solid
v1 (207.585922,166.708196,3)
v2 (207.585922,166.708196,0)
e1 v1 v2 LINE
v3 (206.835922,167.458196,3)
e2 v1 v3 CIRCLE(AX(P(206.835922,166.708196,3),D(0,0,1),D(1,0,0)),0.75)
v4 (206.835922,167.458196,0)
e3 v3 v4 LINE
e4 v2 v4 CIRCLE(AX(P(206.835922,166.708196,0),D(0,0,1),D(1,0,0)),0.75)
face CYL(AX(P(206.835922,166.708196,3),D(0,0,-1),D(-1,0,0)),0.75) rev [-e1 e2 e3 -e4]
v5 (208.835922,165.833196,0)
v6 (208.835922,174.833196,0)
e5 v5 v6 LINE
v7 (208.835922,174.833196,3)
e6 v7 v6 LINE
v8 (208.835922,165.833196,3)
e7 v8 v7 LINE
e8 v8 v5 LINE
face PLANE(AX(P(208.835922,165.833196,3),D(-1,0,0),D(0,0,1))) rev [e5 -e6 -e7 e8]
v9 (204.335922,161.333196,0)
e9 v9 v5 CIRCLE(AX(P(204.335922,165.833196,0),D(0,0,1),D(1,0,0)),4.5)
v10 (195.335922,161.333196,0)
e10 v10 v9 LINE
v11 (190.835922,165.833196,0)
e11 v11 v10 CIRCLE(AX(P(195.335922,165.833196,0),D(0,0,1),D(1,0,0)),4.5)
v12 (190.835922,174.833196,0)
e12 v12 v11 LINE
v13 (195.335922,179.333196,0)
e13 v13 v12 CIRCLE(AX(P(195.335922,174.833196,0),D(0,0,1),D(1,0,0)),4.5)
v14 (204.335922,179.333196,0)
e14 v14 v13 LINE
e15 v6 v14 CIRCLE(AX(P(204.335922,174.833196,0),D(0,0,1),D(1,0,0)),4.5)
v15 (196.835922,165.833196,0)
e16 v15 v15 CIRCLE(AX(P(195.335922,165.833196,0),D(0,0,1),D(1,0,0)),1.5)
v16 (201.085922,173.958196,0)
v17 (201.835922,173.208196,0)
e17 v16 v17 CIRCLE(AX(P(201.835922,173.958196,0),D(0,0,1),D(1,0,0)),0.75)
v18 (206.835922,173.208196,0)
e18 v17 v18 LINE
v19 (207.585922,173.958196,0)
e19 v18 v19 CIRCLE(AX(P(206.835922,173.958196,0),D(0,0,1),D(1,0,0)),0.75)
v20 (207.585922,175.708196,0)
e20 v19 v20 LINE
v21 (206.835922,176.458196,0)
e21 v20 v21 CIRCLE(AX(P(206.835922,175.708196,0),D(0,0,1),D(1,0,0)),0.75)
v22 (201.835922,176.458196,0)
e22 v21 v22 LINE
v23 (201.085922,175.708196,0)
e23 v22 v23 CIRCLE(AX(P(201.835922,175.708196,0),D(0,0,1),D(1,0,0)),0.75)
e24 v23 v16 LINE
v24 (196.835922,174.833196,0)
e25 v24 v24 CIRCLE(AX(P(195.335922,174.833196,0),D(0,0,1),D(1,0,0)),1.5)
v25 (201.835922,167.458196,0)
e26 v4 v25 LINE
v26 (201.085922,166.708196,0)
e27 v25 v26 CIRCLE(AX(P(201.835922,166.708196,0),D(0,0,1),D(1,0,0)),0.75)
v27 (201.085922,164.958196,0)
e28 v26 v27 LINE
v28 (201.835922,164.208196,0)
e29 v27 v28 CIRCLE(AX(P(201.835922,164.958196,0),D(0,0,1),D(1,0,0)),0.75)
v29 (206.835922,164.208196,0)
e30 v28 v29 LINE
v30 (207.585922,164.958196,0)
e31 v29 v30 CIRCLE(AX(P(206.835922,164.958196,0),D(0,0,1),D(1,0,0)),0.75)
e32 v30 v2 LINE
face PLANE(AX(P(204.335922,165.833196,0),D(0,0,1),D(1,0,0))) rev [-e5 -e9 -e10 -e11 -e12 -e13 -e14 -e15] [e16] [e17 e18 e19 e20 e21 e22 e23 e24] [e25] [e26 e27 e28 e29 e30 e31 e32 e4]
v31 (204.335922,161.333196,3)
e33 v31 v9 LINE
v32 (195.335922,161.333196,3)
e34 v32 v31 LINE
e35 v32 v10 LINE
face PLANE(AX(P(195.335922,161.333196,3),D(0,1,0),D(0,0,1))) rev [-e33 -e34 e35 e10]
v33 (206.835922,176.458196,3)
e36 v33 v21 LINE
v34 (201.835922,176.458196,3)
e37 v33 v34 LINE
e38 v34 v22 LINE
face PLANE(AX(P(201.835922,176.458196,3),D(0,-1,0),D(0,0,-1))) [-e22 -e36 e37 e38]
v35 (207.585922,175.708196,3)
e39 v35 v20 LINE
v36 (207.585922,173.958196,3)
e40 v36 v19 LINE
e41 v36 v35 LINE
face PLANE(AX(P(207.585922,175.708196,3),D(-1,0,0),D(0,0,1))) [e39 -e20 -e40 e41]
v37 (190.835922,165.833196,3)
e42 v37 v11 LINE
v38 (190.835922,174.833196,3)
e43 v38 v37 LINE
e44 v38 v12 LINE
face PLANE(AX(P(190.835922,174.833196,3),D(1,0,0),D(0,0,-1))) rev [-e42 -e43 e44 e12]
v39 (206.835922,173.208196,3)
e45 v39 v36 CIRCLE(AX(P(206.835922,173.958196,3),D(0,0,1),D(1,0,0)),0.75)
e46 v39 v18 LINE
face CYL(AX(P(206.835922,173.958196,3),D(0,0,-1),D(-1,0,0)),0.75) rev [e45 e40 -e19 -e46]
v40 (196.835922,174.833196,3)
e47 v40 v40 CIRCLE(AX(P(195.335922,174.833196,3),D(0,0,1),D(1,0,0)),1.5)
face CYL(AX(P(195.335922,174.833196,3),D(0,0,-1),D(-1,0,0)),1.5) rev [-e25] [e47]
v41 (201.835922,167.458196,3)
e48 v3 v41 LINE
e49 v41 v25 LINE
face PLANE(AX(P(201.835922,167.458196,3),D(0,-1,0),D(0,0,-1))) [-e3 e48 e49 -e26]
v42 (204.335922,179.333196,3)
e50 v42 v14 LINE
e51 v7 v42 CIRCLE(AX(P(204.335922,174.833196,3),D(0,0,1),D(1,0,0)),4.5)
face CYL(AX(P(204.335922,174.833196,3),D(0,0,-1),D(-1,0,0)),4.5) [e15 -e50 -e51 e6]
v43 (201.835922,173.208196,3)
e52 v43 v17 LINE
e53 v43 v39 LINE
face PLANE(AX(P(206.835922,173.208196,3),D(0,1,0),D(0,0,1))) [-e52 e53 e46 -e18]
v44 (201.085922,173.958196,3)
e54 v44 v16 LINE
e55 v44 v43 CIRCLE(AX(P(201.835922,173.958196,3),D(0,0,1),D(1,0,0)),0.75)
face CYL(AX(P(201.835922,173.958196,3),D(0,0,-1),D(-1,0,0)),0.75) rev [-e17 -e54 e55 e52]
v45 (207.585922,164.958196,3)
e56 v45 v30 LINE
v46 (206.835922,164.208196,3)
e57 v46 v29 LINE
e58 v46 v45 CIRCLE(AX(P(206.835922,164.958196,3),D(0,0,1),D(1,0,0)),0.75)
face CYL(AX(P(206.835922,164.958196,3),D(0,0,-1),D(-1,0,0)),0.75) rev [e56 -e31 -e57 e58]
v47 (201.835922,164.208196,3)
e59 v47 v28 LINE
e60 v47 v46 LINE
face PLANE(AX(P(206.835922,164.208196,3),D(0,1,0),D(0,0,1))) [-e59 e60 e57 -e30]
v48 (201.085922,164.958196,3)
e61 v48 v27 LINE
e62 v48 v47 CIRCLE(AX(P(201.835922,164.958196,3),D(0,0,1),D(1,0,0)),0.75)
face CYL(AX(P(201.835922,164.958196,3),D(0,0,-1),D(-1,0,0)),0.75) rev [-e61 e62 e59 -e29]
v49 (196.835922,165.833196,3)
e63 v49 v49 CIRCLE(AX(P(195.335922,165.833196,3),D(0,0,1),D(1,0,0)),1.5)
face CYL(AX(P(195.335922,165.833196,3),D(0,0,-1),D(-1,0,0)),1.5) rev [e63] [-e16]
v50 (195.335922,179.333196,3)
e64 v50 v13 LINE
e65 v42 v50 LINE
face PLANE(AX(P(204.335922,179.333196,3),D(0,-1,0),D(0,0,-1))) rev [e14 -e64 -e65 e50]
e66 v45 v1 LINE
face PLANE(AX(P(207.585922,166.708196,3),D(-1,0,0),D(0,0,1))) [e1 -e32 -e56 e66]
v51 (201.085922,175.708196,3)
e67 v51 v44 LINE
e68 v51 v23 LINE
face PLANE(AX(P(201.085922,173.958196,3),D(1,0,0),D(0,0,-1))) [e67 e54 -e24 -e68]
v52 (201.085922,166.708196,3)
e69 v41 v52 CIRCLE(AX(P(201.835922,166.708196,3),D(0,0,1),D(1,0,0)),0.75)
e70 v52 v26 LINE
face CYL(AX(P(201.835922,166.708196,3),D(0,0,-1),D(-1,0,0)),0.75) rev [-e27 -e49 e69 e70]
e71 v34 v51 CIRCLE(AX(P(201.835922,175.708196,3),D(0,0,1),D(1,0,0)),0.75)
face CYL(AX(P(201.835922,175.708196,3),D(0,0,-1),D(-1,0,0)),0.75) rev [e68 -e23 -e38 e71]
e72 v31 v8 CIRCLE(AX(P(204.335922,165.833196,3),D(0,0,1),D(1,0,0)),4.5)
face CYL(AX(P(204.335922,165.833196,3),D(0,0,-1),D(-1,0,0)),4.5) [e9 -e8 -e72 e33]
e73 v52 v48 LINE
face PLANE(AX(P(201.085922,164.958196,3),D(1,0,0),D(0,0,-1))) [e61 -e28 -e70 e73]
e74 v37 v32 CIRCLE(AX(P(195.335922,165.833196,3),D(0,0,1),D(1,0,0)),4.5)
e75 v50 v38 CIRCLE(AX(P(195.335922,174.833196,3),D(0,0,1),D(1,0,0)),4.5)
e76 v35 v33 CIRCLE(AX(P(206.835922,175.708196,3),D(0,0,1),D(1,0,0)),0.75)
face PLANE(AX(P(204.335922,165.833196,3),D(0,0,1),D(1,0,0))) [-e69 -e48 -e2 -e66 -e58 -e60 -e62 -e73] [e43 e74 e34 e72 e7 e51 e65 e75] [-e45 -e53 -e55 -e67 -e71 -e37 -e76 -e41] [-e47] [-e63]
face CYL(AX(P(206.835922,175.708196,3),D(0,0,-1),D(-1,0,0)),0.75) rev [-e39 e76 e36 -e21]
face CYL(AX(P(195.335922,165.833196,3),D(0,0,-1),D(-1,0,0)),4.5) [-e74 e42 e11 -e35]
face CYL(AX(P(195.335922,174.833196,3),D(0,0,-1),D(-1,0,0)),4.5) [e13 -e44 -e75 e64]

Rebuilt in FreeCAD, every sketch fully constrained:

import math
import FreeCAD as App
import Part
import Sketcher

V = App.Vector
Q = App.Units.Quantity

doc = App.newDocument("Part")
body = doc.addObject("PartDesign::Body", "Body")

# Sketch on XY plane
sketch1 = body.newObject("Sketcher::SketchObject", "Sketch")
sketch1.AttachmentSupport = (doc.getObject("XY_Plane"), [""])
sketch1.MapMode = "FlatFace"
sketch1.addGeometry([
    Part.LineSegment(V(195.3, 161.3, 0), V(204.3, 161.3, 0)),  # 0
    Part.ArcOfCircle(Part.Circle(V(204.3, 165.8, 0), V(0, 0, 1), 4.5), math.radians(-90), math.radians(0)),  # 1
    Part.LineSegment(V(208.8, 165.8, 0), V(208.8, 174.8, 0)),  # 2
    Part.ArcOfCircle(Part.Circle(V(204.3, 174.8, 0), V(0, 0, 1), 4.5), math.radians(0), math.radians(90)),  # 3
    Part.LineSegment(V(204.3, 179.3, 0), V(195.3, 179.3, 0)),  # 4
    Part.ArcOfCircle(Part.Circle(V(195.3, 174.8, 0), V(0, 0, 1), 4.5), math.radians(90), math.radians(180)),  # 5
    Part.LineSegment(V(190.8, 174.8, 0), V(190.8, 165.8, 0)),  # 6
    Part.ArcOfCircle(Part.Circle(V(195.3, 165.8, 0), V(0, 0, 1), 4.5), math.radians(180), math.radians(270)),  # 7
    Part.Circle(V(195.3, 165.8, 0), V(0, 0, 1), 1.5),  # 8
    Part.ArcOfCircle(Part.Circle(V(206.8, 165, 0), V(0, 0, 1), 0.8), math.radians(-90), math.radians(0)),  # 9
    Part.LineSegment(V(206.8, 164.2, 0), V(201.8, 164.2, 0)),  # 10
    Part.ArcOfCircle(Part.Circle(V(201.8, 165, 0), V(0, 0, 1), 0.8), math.radians(180), math.radians(270)),  # 11
    Part.LineSegment(V(201.1, 165, 0), V(201.1, 166.7, 0)),  # 12
    Part.ArcOfCircle(Part.Circle(V(201.8, 166.7, 0), V(0, 0, 1), 0.8), math.radians(90), math.radians(180)),  # 13
    Part.LineSegment(V(201.8, 167.5, 0), V(206.8, 167.5, 0)),  # 14
    Part.ArcOfCircle(Part.Circle(V(206.8, 166.7, 0), V(0, 0, 1), 0.8), math.radians(0), math.radians(90)),  # 15
    Part.LineSegment(V(207.6, 166.7, 0), V(207.6, 165, 0)),  # 16
    Part.Circle(V(195.3, 174.8, 0), V(0, 0, 1), 1.5),  # 17
    Part.ArcOfCircle(Part.Circle(V(206.8, 174, 0), V(0, 0, 1), 0.8), math.radians(-90), math.radians(0)),  # 18
    Part.LineSegment(V(206.8, 173.2, 0), V(201.8, 173.2, 0)),  # 19
    Part.ArcOfCircle(Part.Circle(V(201.8, 174, 0), V(0, 0, 1), 0.8), math.radians(180), math.radians(270)),  # 20
    Part.LineSegment(V(201.1, 174, 0), V(201.1, 175.7, 0)),  # 21
    Part.ArcOfCircle(Part.Circle(V(201.8, 175.7, 0), V(0, 0, 1), 0.8), math.radians(90), math.radians(180)),  # 22
    Part.LineSegment(V(201.8, 176.5, 0), V(206.8, 176.5, 0)),  # 23
    Part.ArcOfCircle(Part.Circle(V(206.8, 175.7, 0), V(0, 0, 1), 0.8), math.radians(0), math.radians(90)),  # 24
    Part.LineSegment(V(207.6, 175.7, 0), V(207.6, 174, 0)),  # 25
], False)
sketch1.addConstraint([
    Sketcher.Constraint("Tangent", 0, 2, 1, 1),
    Sketcher.Constraint("Tangent", 1, 2, 2, 1),
    Sketcher.Constraint("Tangent", 2, 2, 3, 1),
    Sketcher.Constraint("Tangent", 3, 2, 4, 1),
    Sketcher.Constraint("Tangent", 4, 2, 5, 1),
    Sketcher.Constraint("Tangent", 5, 2, 6, 1),
    Sketcher.Constraint("Tangent", 6, 2, 7, 1),
    Sketcher.Constraint("Tangent", 7, 2, 0, 1),
    Sketcher.Constraint("Tangent", 9, 1, 10, 1),
    Sketcher.Constraint("Tangent", 10, 2, 11, 2),
    Sketcher.Constraint("Tangent", 11, 1, 12, 1),
    Sketcher.Constraint("Tangent", 12, 2, 13, 2),
    Sketcher.Constraint("Tangent", 13, 1, 14, 1),
    Sketcher.Constraint("Tangent", 14, 2, 15, 2),
    Sketcher.Constraint("Tangent", 15, 1, 16, 1),
    Sketcher.Constraint("Tangent", 16, 2, 9, 2),
    Sketcher.Constraint("Tangent", 18, 1, 19, 1),
    Sketcher.Constraint("Tangent", 19, 2, 20, 2),
    Sketcher.Constraint("Tangent", 20, 1, 21, 1),
    Sketcher.Constraint("Tangent", 21, 2, 22, 2),
    Sketcher.Constraint("Tangent", 22, 1, 23, 1),
    Sketcher.Constraint("Tangent", 23, 2, 24, 2),
    Sketcher.Constraint("Tangent", 24, 1, 25, 1),
    Sketcher.Constraint("Tangent", 25, 2, 18, 2),
    Sketcher.Constraint("Horizontal", 0),
    Sketcher.Constraint("Vertical", 2),
    Sketcher.Constraint("Horizontal", 4),
    Sketcher.Constraint("Vertical", 6),
    Sketcher.Constraint("Horizontal", 10),
    Sketcher.Constraint("Vertical", 12),
    Sketcher.Constraint("Horizontal", 14),
    Sketcher.Constraint("Vertical", 16),
    Sketcher.Constraint("Horizontal", 19),
    Sketcher.Constraint("Vertical", 21),
    Sketcher.Constraint("Horizontal", 23),
    Sketcher.Constraint("Vertical", 25),
    Sketcher.Constraint("Coincident", 8, 3, 7, 3),
    Sketcher.Constraint("Coincident", 17, 3, 5, 3),
    Sketcher.Constraint("Equal", 1, 3),
    Sketcher.Constraint("Equal", 3, 5),
    Sketcher.Constraint("Equal", 5, 7),
    Sketcher.Constraint("Equal", 9, 11),
    Sketcher.Constraint("Equal", 11, 13),
    Sketcher.Constraint("Equal", 13, 15),
    Sketcher.Constraint("Equal", 8, 17),
    Sketcher.Constraint("Equal", 15, 18),
    Sketcher.Constraint("Equal", 18, 20),
    Sketcher.Constraint("Equal", 20, 22),
    Sketcher.Constraint("Equal", 22, 24),
    Sketcher.Constraint("Vertical", 15, 3, 18, 3),
    Sketcher.Constraint("Vertical", 13, 3, 20, 3),
    Sketcher.Constraint("Equal", 4, 2),
    Sketcher.Constraint("Equal", 16, 21),
    Sketcher.Constraint("Diameter", 8, Q("3 mm")),
    Sketcher.Constraint("Radius", 1, Q("4.5 mm")),
    Sketcher.Constraint("DistanceX", 0, 1, 0, 2, Q("9 mm")),
    Sketcher.Constraint("DistanceX", 10, 2, 10, 1, Q("5 mm")),
    Sketcher.Constraint("Radius", 9, Q("0.75 mm")),
    Sketcher.Constraint("DistanceY", 9, 3, 18, 3, Q("9 mm")),
    Sketcher.Constraint("DistanceX", 9, 3, 1, 2, Q("2 mm")),
    Sketcher.Constraint("DistanceY", 12, 1, 12, 2, Q("1.75 mm")),
    Sketcher.Constraint("DistanceY", 9, 3, 1, 3, Q("0.875 mm")),
    Sketcher.Constraint("DistanceX", -1, 1, 1, 3, Q("204.335922 mm")),
    Sketcher.Constraint("DistanceY", -1, 1, 1, 3, Q("165.833196 mm")),
])
pad1 = body.newObject("PartDesign::Pad", "Pad")
pad1.Profile = sketch1
pad1.Length = 3

doc.recompute()
